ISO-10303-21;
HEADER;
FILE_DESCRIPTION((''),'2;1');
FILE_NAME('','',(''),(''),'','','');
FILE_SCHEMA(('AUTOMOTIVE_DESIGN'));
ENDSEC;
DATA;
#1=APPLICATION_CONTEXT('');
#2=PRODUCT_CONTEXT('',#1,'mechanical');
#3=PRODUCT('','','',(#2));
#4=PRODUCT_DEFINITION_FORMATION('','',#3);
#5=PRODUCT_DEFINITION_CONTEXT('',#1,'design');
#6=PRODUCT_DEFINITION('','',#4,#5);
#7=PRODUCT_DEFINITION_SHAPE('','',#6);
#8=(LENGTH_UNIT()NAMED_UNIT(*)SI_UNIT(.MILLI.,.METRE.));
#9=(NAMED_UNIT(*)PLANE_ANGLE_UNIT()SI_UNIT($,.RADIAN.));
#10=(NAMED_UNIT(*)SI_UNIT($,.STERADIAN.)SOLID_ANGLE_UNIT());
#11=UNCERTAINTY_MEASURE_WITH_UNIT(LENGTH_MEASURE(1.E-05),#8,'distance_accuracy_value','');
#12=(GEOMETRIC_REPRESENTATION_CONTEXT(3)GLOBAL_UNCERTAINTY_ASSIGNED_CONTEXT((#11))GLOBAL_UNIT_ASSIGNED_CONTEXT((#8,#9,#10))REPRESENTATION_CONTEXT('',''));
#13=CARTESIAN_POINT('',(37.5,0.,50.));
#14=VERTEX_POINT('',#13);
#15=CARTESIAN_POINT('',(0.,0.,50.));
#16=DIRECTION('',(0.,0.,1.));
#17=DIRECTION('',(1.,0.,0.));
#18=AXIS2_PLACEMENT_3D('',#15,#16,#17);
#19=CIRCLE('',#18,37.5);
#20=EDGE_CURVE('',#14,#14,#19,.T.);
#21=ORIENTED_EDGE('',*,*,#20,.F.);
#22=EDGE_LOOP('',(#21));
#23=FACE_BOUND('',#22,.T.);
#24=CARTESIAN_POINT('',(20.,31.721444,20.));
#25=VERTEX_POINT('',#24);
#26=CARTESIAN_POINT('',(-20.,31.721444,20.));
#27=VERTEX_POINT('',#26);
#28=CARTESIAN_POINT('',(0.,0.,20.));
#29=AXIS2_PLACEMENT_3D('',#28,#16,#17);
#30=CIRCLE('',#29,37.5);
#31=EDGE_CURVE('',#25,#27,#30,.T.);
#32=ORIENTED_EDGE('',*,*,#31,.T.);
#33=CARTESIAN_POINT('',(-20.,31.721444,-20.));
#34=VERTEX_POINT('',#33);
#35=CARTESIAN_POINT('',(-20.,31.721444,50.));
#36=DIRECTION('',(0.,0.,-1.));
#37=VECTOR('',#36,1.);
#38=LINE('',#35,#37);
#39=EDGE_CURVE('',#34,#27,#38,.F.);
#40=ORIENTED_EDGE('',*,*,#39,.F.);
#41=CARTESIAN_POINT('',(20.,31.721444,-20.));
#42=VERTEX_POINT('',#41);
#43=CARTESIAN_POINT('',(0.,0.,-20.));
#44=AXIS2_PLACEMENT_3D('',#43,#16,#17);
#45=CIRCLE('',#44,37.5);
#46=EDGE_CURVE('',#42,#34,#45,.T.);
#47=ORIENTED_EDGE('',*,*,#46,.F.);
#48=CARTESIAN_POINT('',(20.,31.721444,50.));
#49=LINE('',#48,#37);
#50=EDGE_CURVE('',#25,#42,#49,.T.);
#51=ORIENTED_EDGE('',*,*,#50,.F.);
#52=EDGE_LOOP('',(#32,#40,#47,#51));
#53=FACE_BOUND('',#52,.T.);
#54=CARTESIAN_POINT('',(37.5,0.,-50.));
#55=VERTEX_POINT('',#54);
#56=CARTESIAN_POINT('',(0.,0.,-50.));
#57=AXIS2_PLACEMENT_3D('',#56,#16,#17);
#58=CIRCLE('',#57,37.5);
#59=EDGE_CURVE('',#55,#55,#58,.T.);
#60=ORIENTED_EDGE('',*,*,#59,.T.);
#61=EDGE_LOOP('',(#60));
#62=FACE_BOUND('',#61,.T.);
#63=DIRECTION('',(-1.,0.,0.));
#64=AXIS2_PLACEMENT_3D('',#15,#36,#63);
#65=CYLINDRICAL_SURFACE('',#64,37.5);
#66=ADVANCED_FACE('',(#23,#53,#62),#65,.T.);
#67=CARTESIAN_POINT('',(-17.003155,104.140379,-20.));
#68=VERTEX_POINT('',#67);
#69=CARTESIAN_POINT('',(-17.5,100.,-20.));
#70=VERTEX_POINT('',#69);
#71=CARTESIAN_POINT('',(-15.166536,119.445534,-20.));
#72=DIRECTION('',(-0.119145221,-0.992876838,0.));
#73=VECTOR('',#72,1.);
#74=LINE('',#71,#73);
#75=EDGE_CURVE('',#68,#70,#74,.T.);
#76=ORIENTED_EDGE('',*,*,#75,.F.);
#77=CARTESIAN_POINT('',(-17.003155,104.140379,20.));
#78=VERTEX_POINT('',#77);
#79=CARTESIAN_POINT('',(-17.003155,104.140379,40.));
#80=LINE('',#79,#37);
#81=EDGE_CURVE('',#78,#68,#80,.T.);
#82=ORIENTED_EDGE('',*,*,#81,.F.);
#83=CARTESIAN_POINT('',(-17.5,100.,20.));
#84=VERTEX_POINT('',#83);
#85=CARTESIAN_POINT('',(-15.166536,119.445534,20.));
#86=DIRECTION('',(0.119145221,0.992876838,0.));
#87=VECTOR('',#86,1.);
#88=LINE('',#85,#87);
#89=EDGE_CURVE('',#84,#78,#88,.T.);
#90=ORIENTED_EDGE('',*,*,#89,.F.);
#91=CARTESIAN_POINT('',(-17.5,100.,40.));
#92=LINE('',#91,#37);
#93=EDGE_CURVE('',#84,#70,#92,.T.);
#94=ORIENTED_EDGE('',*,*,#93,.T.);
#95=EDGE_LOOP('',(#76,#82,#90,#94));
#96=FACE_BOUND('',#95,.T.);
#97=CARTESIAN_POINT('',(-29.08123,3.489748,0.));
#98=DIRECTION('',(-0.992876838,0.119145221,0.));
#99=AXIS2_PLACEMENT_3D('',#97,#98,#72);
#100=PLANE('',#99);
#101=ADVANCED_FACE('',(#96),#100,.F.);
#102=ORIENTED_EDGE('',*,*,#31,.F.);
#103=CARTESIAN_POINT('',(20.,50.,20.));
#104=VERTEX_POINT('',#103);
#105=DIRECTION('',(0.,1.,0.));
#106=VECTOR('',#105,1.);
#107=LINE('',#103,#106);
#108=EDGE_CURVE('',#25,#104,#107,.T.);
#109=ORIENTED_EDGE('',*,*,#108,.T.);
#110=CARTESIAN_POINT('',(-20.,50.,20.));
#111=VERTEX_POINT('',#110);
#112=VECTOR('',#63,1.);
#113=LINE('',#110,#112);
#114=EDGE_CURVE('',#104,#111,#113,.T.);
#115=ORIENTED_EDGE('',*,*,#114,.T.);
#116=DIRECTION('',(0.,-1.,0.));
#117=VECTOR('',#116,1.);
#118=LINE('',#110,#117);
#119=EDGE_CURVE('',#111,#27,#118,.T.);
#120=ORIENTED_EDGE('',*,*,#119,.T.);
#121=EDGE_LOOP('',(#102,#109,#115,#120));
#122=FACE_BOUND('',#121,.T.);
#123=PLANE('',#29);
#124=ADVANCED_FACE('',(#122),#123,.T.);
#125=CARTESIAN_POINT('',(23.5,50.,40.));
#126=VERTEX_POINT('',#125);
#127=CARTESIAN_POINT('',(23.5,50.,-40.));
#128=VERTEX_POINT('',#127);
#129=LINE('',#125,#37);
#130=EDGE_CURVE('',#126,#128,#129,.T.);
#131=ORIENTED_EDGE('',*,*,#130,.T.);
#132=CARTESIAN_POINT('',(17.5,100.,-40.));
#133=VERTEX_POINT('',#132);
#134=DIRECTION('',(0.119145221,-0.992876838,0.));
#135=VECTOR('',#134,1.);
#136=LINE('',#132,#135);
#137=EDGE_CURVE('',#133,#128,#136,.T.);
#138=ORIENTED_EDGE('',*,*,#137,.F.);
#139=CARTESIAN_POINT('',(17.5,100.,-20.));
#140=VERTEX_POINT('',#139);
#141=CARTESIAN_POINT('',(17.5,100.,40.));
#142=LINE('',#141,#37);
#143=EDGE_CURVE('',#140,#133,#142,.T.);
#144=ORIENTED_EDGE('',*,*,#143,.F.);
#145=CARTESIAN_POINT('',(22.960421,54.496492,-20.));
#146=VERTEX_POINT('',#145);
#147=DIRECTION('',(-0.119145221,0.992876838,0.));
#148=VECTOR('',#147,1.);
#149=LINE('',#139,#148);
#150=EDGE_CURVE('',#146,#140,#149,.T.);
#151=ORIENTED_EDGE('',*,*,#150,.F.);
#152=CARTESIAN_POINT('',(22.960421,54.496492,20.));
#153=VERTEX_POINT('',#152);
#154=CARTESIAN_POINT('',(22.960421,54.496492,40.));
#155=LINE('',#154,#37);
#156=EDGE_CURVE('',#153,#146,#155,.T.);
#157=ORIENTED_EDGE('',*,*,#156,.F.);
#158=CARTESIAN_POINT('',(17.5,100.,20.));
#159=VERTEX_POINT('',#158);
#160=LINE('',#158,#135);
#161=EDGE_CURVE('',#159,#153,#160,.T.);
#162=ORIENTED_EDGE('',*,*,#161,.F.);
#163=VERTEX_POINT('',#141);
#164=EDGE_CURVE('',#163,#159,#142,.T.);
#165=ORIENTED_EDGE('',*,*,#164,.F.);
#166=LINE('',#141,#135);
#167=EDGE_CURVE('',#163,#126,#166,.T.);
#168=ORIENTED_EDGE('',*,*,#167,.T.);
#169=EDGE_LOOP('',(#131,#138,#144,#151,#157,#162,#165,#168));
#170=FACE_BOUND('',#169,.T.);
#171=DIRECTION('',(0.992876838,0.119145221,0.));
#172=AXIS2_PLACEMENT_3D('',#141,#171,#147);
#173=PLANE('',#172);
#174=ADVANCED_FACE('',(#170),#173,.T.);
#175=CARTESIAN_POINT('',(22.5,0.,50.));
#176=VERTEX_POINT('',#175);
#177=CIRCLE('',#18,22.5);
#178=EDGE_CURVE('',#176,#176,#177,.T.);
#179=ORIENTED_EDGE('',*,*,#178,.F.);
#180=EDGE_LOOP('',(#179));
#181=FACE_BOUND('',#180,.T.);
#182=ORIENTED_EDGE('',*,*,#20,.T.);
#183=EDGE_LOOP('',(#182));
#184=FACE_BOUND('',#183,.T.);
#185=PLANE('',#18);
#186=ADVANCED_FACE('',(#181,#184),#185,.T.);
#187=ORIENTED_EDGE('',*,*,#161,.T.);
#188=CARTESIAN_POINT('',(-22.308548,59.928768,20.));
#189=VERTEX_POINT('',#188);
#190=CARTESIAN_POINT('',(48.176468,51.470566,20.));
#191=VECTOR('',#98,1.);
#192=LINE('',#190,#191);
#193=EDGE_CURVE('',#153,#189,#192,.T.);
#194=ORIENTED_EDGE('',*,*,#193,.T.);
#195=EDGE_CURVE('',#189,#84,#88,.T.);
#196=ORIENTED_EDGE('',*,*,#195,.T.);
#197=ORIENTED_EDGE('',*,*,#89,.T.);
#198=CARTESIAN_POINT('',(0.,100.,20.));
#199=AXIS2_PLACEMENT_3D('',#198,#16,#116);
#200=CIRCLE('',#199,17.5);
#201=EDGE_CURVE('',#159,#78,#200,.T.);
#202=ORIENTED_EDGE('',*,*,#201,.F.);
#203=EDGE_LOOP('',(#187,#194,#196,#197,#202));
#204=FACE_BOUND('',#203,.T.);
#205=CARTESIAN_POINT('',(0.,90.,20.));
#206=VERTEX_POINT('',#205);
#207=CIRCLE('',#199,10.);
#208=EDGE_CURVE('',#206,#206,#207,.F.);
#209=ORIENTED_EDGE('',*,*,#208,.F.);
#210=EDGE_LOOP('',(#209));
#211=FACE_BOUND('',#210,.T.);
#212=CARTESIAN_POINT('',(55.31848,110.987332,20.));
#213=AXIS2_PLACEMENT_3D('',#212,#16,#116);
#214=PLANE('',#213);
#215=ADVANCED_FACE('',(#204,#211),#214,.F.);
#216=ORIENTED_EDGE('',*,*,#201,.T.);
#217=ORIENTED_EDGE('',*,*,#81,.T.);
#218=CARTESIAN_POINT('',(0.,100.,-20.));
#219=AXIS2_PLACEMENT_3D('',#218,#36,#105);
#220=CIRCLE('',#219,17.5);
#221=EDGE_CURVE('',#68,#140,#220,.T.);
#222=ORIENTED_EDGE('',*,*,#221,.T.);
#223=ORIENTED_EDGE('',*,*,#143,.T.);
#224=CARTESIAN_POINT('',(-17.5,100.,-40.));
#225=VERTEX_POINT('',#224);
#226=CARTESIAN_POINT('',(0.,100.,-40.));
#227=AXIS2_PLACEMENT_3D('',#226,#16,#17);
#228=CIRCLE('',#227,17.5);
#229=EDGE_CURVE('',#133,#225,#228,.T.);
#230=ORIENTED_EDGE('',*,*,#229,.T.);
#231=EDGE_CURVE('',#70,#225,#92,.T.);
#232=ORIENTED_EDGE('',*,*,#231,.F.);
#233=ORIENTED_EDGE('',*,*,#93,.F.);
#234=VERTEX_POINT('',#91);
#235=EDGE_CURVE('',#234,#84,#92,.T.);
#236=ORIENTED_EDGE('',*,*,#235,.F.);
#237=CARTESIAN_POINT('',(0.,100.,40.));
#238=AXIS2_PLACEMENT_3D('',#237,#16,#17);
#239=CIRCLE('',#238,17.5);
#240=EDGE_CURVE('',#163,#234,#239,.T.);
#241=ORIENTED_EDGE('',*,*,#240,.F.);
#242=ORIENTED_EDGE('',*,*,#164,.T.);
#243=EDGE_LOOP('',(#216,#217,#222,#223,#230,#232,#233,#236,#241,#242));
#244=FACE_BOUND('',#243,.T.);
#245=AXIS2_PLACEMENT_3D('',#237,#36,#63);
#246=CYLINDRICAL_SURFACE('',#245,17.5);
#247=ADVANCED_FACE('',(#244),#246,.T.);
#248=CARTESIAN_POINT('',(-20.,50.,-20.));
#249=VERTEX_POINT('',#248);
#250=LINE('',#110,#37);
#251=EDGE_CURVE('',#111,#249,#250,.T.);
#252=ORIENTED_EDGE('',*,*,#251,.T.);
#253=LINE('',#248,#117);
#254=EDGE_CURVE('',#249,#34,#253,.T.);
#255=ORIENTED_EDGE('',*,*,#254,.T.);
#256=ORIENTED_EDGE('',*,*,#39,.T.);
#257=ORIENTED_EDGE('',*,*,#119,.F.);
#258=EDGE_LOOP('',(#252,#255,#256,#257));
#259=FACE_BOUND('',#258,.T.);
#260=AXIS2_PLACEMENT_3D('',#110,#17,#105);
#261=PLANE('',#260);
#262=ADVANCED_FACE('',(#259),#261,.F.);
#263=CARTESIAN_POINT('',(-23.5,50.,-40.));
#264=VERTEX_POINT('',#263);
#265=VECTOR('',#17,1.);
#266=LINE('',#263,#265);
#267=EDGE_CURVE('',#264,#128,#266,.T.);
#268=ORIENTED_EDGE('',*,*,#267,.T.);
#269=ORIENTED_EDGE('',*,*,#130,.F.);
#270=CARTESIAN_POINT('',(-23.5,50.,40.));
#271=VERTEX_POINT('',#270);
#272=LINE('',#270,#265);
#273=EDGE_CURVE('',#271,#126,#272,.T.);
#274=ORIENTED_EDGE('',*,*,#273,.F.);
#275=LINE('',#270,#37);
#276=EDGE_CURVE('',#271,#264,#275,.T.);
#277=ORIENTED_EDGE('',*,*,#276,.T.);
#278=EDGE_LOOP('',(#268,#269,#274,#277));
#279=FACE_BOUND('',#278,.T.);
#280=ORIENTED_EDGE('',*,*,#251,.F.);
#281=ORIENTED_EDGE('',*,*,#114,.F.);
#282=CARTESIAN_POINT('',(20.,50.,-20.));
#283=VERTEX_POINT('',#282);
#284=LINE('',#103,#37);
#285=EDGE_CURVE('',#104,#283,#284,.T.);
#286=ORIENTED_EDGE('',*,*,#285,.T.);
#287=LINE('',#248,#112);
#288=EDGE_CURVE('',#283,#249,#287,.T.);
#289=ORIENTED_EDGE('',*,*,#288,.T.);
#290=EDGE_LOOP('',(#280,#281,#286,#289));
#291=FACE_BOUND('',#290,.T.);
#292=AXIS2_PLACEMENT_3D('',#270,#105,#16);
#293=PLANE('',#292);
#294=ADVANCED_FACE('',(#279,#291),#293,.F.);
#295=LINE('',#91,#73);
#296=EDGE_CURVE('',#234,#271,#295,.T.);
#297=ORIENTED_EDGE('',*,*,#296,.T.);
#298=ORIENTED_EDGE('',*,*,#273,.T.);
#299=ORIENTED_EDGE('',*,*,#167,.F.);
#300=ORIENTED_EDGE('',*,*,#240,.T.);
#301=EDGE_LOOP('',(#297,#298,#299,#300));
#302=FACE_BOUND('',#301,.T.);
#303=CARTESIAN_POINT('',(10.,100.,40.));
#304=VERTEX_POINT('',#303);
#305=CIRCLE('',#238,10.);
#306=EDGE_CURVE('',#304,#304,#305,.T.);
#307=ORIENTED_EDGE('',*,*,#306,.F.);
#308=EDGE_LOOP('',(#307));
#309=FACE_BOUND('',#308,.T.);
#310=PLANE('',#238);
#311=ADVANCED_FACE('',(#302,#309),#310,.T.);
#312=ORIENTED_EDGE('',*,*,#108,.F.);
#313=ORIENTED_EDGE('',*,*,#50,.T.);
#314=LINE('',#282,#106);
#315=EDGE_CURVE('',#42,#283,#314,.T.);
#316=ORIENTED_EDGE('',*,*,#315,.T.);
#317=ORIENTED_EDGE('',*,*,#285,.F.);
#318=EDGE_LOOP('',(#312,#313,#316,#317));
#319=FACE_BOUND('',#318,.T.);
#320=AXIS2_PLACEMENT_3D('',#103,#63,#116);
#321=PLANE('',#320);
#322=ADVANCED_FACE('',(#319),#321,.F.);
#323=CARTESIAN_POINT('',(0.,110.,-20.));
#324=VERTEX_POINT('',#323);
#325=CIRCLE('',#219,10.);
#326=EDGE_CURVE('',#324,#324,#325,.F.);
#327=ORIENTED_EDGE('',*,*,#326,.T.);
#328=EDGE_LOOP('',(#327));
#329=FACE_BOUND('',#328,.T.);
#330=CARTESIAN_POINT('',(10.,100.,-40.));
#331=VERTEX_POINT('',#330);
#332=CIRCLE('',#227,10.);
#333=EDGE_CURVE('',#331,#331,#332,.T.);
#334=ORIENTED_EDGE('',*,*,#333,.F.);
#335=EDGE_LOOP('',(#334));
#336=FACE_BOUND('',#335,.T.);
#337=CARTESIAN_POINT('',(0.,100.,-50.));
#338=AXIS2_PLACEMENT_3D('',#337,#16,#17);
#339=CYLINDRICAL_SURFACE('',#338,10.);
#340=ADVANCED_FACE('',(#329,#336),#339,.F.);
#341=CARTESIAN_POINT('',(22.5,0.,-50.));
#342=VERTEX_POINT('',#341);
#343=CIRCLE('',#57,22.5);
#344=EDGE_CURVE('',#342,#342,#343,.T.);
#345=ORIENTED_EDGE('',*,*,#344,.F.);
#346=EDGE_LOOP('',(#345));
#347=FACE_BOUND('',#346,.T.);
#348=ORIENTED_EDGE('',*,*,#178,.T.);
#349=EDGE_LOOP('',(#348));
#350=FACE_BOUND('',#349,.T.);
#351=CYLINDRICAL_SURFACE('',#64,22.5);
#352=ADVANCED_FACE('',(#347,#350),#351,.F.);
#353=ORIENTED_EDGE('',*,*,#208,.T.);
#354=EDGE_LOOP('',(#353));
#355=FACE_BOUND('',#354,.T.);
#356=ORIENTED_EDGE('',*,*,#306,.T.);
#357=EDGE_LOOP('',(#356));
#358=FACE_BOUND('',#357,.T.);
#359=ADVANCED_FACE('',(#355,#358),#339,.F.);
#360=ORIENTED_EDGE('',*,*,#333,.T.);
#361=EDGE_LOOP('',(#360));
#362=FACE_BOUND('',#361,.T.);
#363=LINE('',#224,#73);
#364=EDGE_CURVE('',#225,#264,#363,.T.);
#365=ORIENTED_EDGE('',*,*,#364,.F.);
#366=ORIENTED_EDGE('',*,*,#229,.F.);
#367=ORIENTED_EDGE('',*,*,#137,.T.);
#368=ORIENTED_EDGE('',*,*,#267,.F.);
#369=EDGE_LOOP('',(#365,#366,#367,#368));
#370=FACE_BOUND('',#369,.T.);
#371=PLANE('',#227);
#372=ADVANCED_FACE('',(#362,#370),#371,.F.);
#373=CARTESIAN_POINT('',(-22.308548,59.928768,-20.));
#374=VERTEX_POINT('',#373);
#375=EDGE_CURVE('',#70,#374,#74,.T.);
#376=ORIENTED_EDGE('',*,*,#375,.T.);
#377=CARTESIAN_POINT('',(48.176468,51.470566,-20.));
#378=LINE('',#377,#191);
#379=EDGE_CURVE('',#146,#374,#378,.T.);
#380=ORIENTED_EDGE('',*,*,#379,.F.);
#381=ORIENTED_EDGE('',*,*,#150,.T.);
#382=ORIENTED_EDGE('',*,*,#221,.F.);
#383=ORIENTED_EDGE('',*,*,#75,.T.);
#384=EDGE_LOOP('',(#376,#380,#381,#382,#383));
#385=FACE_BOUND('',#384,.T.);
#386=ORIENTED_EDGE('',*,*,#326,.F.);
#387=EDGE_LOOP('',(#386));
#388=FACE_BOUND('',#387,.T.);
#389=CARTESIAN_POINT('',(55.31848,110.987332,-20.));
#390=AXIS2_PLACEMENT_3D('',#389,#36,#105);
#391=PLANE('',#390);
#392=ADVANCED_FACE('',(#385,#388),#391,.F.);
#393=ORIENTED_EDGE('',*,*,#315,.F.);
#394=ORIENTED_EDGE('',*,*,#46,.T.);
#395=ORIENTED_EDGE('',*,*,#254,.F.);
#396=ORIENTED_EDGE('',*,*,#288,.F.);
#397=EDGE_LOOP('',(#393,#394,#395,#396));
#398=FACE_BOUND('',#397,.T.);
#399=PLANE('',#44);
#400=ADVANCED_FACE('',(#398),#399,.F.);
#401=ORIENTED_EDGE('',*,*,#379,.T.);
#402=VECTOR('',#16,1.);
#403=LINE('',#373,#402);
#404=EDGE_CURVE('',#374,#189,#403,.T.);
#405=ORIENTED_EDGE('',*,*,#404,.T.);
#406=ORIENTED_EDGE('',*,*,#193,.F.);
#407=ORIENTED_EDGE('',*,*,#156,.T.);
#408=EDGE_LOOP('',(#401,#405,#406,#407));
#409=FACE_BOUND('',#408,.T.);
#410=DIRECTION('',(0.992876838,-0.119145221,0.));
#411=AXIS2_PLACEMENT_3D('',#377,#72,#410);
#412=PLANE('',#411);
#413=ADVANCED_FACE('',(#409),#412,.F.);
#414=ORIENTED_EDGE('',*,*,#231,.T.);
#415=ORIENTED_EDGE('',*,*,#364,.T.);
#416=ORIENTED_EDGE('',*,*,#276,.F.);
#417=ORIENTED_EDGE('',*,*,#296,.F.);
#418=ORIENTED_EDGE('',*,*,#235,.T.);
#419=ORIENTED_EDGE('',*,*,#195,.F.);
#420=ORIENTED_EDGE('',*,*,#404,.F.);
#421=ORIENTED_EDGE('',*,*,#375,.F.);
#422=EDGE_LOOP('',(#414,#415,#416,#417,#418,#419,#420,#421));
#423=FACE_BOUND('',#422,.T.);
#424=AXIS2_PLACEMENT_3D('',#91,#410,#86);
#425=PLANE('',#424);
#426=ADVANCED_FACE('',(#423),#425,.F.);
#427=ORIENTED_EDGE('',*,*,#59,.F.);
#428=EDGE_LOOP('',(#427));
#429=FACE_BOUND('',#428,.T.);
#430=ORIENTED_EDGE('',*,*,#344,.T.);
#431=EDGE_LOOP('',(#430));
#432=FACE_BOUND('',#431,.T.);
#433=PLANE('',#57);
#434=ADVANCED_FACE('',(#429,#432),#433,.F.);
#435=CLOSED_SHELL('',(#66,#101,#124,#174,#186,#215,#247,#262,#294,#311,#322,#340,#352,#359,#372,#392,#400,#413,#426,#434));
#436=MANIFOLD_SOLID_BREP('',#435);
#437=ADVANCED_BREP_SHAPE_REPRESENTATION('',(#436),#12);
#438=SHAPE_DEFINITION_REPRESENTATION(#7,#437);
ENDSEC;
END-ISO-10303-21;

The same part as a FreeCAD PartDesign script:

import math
import FreeCAD as App
import Part
import Sketcher
Q = App.Units.Quantity

doc = App.newDocument("Part")
params = doc.addObject("Spreadsheet::Sheet", "Params")
for row, (alias, value) in enumerate([
    ("sketch1_diameter", "75 mm"),
    ("sketch1_diameter2", "45 mm"),
    ("pad1_length", "100 mm"),
    ("sketch2_radius", "17.5 mm"),
    ("sketch2_width", "47 mm"),
    ("pad2_length", "80 mm"),
    ("sketch3_diameter", "20 mm"),
    ("sketch4_width", "40 mm"),
    ("sketch5_width", "40 mm"),
    ("sketch5_height", "20 mm"),
    ("pad3_length", "40 mm"),
], start=1):
    params.set(f"A{row}", alias)
    params.set(f"B{row}", "=" + value)
    params.setAlias(f"B{row}", alias)

body = doc.addObject("PartDesign::Body", "Body")

# Sketch on XY plane
sketch1 = body.newObject("Sketcher::SketchObject", "Sketch")
sketch1.AttachmentSupport = (doc.getObject("XY_Plane"), [""])
sketch1.MapMode = "FlatFace"
sketch1.addGeometry([
    Part.Circle(App.Vector(0, 0, 0), App.Vector(0, 0, 1), 37.5),
    Part.Circle(App.Vector(0, 0, 0), App.Vector(0, 0, 1), 22.5),
], False)
sketch1.addConstraint([
    Sketcher.Constraint("Coincident", 0, 3, -1, 1),
    Sketcher.Constraint("Coincident", 1, 3, -1, 1),
    Sketcher.Constraint("Diameter", 0, Q("75 mm")),
    Sketcher.Constraint("Diameter", 1, Q("45 mm")),
])
sketch1.setExpression("Constraints[2]", "Params.sketch1_diameter")
sketch1.setExpression("Constraints[3]", "Params.sketch1_diameter2")
pad1 = body.newObject("PartDesign::Pad", "Pad")
pad1.Profile = sketch1
pad1.setExpression("Length", "Params.pad1_length")
pad1.Midplane = True
body2 = doc.addObject("PartDesign::Body", "Body001")

# Sketch on XY plane
sketch2 = body2.newObject("Sketcher::SketchObject", "Sketch001")
sketch2.AttachmentSupport = (doc.getObject("XY_Plane001"), [""])
sketch2.MapMode = "FlatFace"
sketch2.addGeometry([
    Part.LineSegment(App.Vector(-23.5, 50, 0), App.Vector(23.5, 50, 0)),
    Part.LineSegment(App.Vector(23.5, 50, 0), App.Vector(17.5, 100, 0)),
    Part.ArcOfCircle(Part.Circle(App.Vector(0, 100, 0), App.Vector(0, 0, 1), 17.5), math.radians(0), math.radians(180)),
    Part.LineSegment(App.Vector(-17.5, 100, 0), App.Vector(-23.5, 50, 0)),
], False)
sketch2.addConstraint([
    Sketcher.Constraint("Coincident", 0, 2, 1, 1),
    Sketcher.Constraint("Coincident", 1, 2, 2, 1),
    Sketcher.Constraint("Coincident", 2, 2, 3, 1),
    Sketcher.Constraint("Coincident", 3, 2, 0, 1),
    Sketcher.Constraint("Horizontal", 0),
    Sketcher.Constraint("Symmetric", 1, 2, 2, 2, -2),
    Sketcher.Constraint("Horizontal", 2, 3, 1, 2),
    Sketcher.Constraint("Equal", 1, 3),
    Sketcher.Constraint("Radius", 2, Q("17.5 mm")),
    Sketcher.Constraint("DistanceX", 0, 1, 0, 2, Q("47 mm")),
    Sketcher.Constraint("DistanceY", -1, 1, 2, 3, Q("100 mm")),
    Sketcher.Constraint("DistanceY", -1, 1, 0, 2, Q("50 mm")),
])
sketch2.setExpression("Constraints[8]", "Params.sketch2_radius")
sketch2.setExpression("Constraints[9]", "Params.sketch2_width")
pad2 = body2.newObject("PartDesign::Pad", "Pad001")
pad2.Profile = sketch2
pad2.setExpression("Length", "Params.pad2_length")
pad2.Midplane = True

# Sketch on XY plane
sketch3 = body2.newObject("Sketcher::SketchObject", "Sketch002")
sketch3.AttachmentSupport = (doc.getObject("XY_Plane001"), [""])
sketch3.MapMode = "FlatFace"
sketch3.AttachmentOffset = App.Placement(App.Vector(0, 0, 40), App.Rotation())
sketch3.addGeometry(Part.Circle(App.Vector(0, 100, 0), App.Vector(0, 0, 1), 10), False)
sketch3.addConstraint([
    Sketcher.Constraint("PointOnObject", 0, 3, -2),
    Sketcher.Constraint("Diameter", 0, Q("20 mm")),
    Sketcher.Constraint("DistanceY", -1, 1, 0, 3, Q("100 mm")),
])
sketch3.setExpression("Constraints[1]", "Params.sketch3_diameter")
pocket1 = body2.newObject("PartDesign::Pocket", "Pocket")
pocket1.Profile = sketch3
pocket1.Type = "ThroughAll"

# Sketch on an angled plane
sketch4 = body2.newObject("Sketcher::SketchObject", "Sketch003")
sketch4.Placement = App.Placement(App.Vector(-29.08123, 3.489748, 0), App.Rotation(App.Vector(0, 0, 1), App.Vector(0.119145221, 0.992876838, 0), App.Vector(-0.992876838, 0.119145221, 0), "ZXY"))
sketch4.addGeometry([
    Part.LineSegment(App.Vector(-20, 116.787684, 0), App.Vector(-20, 56.843929, 0)),
    Part.LineSegment(App.Vector(-20, 56.843929, 0), App.Vector(20, 56.843929, 0)),
    Part.LineSegment(App.Vector(20, 56.843929, 0), App.Vector(20, 116.787684, 0)),
    Part.LineSegment(App.Vector(20, 116.787684, 0), App.Vector(-20, 116.787684, 0)),
], False)
sketch4.addConstraint([
    Sketcher.Constraint("Coincident", 0, 2, 1, 1),
    Sketcher.Constraint("Coincident", 1, 2, 2, 1),
    Sketcher.Constraint("Coincident", 2, 2, 3, 1),
    Sketcher.Constraint("Coincident", 3, 2, 0, 1),
    Sketcher.Constraint("Vertical", 0),
    Sketcher.Constraint("Horizontal", 1),
    Sketcher.Constraint("Vertical", 2),
    Sketcher.Constraint("Horizontal", 3),
    Sketcher.Constraint("DistanceX", 1, 1, 1, 2, Q("40 mm")),
    Sketcher.Constraint("DistanceX", 0, 2, -1, 1, Q("20 mm")),
    Sketcher.Constraint("DistanceY", 0, 2, 0, 1, Q("59.943755 mm")),
    Sketcher.Constraint("DistanceY", -1, 1, 0, 2, Q("56.843929 mm")),
])
sketch4.setExpression("Constraints[8]", "Params.sketch4_width")
pocket2 = body2.newObject("PartDesign::Pocket", "Pocket001")
pocket2.Profile = sketch4
pocket2.Type = "ThroughAll"
body.AllowCompound = True
doc.recompute()

boolean = body.newObject("PartDesign::Boolean", "Boolean")
boolean.Type = "Fuse"
boolean.addObjects([body2])

# Sketch on XY plane
sketch5 = body.newObject("Sketcher::SketchObject", "Sketch004")
sketch5.AttachmentSupport = (doc.getObject("XY_Plane"), [""])
sketch5.MapMode = "FlatFace"
sketch5.addGeometry([
    Part.LineSegment(App.Vector(-20, 50, 0), App.Vector(-20, 30, 0)),
    Part.LineSegment(App.Vector(-20, 30, 0), App.Vector(20, 30, 0)),
    Part.LineSegment(App.Vector(20, 30, 0), App.Vector(20, 50, 0)),
    Part.LineSegment(App.Vector(20, 50, 0), App.Vector(-20, 50, 0)),
], False)
sketch5.addConstraint([
    Sketcher.Constraint("Coincident", 0, 2, 1, 1),
    Sketcher.Constraint("Coincident", 1, 2, 2, 1),
    Sketcher.Constraint("Coincident", 2, 2, 3, 1),
    Sketcher.Constraint("Coincident", 3, 2, 0, 1),
    Sketcher.Constraint("Vertical", 0),
    Sketcher.Constraint("Horizontal", 1),
    Sketcher.Constraint("Vertical", 2),
    Sketcher.Constraint("Horizontal", 3),
    Sketcher.Constraint("DistanceX", 1, 1, 1, 2, Q("40 mm")),
    Sketcher.Constraint("DistanceY", 0, 2, 0, 1, Q("20 mm")),
    Sketcher.Constraint("DistanceX", 0, 2, -1, 1, Q("20 mm")),
    Sketcher.Constraint("DistanceY", -1, 1, 0, 2, Q("30 mm")),
])
sketch5.setExpression("Constraints[8]", "Params.sketch5_width")
sketch5.setExpression("Constraints[9]", "Params.sketch5_height")
pad3 = body.newObject("PartDesign::Pad", "Pad002")
pad3.Profile = sketch5
pad3.setExpression("Length", "Params.pad3_length")
pad3.Midplane = True

doc.recompute()
